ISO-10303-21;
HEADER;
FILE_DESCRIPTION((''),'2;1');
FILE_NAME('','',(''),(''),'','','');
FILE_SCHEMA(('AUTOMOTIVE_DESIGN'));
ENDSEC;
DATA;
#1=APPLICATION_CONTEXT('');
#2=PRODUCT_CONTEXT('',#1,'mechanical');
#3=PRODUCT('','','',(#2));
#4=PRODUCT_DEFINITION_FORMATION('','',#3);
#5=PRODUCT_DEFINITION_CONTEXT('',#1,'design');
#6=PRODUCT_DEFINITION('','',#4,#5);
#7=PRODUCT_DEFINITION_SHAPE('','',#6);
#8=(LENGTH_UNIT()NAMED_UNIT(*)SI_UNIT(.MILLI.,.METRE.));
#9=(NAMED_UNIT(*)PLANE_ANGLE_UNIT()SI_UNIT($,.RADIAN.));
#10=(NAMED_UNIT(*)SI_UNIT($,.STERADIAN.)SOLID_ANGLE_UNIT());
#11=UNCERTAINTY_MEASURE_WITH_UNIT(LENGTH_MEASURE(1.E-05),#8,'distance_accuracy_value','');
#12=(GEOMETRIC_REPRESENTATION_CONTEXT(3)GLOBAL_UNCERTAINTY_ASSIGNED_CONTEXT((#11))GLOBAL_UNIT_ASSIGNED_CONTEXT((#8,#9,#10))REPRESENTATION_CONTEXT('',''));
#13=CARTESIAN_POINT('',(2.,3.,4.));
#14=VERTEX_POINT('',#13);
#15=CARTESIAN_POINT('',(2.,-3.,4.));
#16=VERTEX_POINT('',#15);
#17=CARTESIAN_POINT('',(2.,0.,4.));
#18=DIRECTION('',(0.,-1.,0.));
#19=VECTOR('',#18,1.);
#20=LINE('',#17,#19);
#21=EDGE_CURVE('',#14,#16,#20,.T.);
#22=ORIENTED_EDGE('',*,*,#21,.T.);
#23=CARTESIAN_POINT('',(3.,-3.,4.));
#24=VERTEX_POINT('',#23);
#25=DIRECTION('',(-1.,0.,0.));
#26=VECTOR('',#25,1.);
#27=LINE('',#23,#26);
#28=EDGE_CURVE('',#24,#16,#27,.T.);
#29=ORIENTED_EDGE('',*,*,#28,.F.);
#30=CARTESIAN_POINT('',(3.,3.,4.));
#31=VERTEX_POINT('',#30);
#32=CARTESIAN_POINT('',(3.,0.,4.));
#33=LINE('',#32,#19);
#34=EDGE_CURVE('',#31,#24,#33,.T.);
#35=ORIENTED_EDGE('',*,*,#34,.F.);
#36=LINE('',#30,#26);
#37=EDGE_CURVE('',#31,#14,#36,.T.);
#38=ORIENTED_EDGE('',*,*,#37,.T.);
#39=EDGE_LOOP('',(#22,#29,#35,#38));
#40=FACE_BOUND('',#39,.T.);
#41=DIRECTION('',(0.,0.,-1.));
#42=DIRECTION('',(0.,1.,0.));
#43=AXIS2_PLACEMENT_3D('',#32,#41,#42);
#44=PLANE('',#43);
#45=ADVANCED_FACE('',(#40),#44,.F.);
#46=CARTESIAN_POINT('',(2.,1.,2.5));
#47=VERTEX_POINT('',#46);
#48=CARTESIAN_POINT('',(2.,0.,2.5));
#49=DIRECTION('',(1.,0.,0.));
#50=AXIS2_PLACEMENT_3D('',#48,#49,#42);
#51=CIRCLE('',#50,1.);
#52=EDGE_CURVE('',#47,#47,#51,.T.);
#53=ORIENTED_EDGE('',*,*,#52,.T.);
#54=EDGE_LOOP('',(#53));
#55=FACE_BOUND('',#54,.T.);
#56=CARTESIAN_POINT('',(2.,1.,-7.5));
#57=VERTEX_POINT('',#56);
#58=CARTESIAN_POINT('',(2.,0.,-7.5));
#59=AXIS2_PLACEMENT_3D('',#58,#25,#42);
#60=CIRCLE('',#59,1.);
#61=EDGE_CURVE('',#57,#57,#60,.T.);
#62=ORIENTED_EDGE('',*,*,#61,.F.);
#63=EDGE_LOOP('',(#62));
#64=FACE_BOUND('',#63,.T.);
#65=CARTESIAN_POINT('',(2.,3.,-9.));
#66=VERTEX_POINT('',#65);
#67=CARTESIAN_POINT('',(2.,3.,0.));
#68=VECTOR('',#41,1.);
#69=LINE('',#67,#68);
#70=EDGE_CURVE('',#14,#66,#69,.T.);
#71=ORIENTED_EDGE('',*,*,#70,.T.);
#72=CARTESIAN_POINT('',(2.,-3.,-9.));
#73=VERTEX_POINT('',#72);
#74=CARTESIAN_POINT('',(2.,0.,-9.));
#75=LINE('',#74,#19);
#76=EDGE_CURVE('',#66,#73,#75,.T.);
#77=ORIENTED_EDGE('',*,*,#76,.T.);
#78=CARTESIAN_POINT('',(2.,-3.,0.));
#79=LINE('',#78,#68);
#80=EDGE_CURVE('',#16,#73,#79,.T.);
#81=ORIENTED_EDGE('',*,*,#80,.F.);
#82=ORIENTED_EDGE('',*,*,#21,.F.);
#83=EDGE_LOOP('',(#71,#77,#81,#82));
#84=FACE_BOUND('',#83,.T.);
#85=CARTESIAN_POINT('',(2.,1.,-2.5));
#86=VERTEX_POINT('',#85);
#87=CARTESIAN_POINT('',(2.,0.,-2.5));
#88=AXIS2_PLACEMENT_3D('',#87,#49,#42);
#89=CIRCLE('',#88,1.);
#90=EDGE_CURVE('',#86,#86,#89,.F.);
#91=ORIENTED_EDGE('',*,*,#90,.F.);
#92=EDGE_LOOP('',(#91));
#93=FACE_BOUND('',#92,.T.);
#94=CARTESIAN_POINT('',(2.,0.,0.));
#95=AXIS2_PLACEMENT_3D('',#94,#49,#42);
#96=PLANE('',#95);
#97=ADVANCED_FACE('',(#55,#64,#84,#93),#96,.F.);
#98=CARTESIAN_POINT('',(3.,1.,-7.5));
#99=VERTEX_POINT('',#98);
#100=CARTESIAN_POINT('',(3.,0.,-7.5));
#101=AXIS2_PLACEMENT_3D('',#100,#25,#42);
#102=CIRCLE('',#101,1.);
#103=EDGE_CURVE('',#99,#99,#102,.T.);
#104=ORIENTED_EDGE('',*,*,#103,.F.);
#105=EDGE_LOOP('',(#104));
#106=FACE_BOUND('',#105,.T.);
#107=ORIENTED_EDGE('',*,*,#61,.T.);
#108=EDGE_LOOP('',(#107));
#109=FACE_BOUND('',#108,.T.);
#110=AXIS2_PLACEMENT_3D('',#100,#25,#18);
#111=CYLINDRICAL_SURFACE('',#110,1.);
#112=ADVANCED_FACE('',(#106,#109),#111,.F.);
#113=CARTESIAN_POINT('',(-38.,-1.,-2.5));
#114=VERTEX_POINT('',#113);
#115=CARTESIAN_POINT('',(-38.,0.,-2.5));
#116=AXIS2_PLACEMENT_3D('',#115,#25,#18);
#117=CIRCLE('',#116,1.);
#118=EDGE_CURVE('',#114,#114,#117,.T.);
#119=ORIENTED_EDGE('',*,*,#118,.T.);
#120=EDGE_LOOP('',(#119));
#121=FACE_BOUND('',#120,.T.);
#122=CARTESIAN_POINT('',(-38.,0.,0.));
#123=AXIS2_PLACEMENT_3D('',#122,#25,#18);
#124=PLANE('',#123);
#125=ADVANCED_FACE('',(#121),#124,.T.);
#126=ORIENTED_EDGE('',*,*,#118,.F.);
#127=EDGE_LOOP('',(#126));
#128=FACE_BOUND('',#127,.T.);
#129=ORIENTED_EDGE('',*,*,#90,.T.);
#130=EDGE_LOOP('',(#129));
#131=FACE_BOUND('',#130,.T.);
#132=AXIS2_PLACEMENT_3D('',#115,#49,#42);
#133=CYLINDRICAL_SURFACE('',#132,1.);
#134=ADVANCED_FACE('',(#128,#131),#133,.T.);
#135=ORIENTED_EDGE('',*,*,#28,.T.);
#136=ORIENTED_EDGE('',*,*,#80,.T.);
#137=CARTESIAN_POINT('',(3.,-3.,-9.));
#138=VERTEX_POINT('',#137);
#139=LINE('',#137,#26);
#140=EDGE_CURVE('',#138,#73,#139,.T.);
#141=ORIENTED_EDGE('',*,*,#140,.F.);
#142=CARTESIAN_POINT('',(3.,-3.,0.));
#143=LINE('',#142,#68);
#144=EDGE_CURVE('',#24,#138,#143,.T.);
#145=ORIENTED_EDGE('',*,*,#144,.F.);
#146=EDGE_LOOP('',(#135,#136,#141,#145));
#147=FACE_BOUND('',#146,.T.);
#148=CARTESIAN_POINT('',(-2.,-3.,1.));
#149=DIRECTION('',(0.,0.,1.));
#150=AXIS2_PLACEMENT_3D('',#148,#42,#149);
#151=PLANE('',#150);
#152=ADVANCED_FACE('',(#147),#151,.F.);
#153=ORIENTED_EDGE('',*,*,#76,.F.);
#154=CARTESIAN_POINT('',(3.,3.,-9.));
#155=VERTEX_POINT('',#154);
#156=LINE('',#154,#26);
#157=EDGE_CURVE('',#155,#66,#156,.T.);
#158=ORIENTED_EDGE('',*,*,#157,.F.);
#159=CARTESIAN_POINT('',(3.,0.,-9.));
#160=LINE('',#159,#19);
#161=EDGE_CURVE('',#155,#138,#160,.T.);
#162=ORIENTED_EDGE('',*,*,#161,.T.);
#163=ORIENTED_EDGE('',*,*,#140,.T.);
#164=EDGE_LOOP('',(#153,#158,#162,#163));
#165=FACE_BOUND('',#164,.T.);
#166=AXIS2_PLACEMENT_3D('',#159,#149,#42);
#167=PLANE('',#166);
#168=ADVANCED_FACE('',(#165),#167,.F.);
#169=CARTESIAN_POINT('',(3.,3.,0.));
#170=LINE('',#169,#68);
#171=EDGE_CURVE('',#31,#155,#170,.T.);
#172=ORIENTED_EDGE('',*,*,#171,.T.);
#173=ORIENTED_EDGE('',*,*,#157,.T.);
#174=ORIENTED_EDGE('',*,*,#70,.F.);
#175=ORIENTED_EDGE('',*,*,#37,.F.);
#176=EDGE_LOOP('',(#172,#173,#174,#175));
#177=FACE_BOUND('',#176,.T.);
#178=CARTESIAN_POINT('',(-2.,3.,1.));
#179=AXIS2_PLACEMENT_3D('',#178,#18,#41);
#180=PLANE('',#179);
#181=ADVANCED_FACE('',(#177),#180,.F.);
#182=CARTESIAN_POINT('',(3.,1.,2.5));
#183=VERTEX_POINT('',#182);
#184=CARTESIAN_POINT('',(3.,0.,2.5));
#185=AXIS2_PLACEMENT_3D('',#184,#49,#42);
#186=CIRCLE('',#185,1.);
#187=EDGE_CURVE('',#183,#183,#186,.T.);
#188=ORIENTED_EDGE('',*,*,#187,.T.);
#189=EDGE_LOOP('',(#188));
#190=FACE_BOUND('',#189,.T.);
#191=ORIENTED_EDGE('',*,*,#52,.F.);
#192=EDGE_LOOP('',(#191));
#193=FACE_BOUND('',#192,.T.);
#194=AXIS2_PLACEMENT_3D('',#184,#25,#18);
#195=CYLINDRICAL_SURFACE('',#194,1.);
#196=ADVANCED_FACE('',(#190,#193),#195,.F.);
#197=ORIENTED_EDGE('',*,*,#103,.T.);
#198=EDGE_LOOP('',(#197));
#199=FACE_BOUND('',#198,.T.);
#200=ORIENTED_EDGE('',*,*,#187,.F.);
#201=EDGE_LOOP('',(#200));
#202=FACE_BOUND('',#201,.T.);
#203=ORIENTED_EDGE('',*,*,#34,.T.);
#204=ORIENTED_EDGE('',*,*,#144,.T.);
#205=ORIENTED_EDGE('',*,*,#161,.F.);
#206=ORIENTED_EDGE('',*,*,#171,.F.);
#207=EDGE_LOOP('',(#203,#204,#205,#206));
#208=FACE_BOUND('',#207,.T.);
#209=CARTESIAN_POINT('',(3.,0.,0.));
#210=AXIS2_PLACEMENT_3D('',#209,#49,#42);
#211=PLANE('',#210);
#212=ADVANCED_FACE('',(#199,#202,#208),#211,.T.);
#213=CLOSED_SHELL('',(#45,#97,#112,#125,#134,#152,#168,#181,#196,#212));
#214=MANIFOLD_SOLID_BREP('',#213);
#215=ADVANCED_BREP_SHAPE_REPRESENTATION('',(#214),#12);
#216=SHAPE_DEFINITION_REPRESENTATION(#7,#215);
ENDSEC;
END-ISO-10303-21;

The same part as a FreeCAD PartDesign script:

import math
import FreeCAD as App
import Part
import Sketcher

V = App.Vector


def edges_at(feature, points):
    """Names of the edges that pass closest to the given points."""
    edges = feature.Shape.Edges
    near = lambda p: min(range(len(edges)), key=lambda i: edges[i].distToShape(Part.Vertex(*p))[0])
    return sorted({f"Edge{near(p) + 1}" for p in points})

doc = App.newDocument("Part")
body = doc.addObject("PartDesign::Body", "Body")

# Sketch on XY plane
sketch1 = body.newObject("Sketcher::SketchObject", "Sketch")
sketch1.AttachmentSupport = (doc.getObject("XY_Plane"), [""])
sketch1.MapMode = "FlatFace"
sketch1.addGeometry(Part.LineSegment(V(-2, 3, 0), V(-2, -3, 0)), False)
sketch1.addGeometry(Part.LineSegment(V(-2, -3, 0), V(2, -3, 0)), False)
sketch1.addGeometry(Part.LineSegment(V(2, -3, 0), V(2, 3, 0)), False)
sketch1.addGeometry(Part.LineSegment(V(2, 3, 0), V(-2, 3, 0)), False)
sketch1.addGeometry(Part.Circle(V(0, 0, 0), V(0, 0, 1), 1), False)
sketch1.addConstraint(Sketcher.Constraint("Coincident", 0, 2, 1, 1))
sketch1.addConstraint(Sketcher.Constraint("Coincident", 1, 2, 2, 1))
sketch1.addConstraint(Sketcher.Constraint("Coincident", 2, 2, 3, 1))
sketch1.addConstraint(Sketcher.Constraint("Coincident", 3, 2, 0, 1))
sketch1.addConstraint(Sketcher.Constraint("Vertical", 0))
sketch1.addConstraint(Sketcher.Constraint("Horizontal", 1))
sketch1.addConstraint(Sketcher.Constraint("Vertical", 2))
sketch1.addConstraint(Sketcher.Constraint("Horizontal", 3))
sketch1.addConstraint(Sketcher.Constraint("Coincident", 4, 3, -1, 1))
sketch1.addConstraint(Sketcher.Constraint("Symmetric", 0, 2, 2, 2, -1, 1))
sketch1.addConstraint(Sketcher.Constraint("Diameter", 4, 2.0))
sketch1.addConstraint(Sketcher.Constraint("DistanceX", 1, 1, 1, 2, 4.0))
sketch1.addConstraint(Sketcher.Constraint("DistanceY", 0, 2, 0, 1, 6.0))
pad1 = body.newObject("PartDesign::Pad", "Pad")
pad1.Profile = sketch1
pad1.Length = 1

# Sketch on YZ plane
sketch2 = body.newObject("Sketcher::SketchObject", "Sketch001")
sketch2.AttachmentSupport = (doc.getObject("YZ_Plane"), [""])
sketch2.MapMode = "FlatFace"
sketch2.AttachmentOffset = App.Placement(V(0, 0, 2), App.Rotation())
sketch2.addGeometry(Part.LineSegment(V(3, 4, 0), V(-3, 4, 0)), False)
sketch2.addGeometry(Part.LineSegment(V(-3, 4, 0), V(-3, -2.5, 0)), False)
sketch2.addGeometry(Part.LineSegment(V(-3, -2.5, 0), V(3, -2.5, 0)), False)
sketch2.addGeometry(Part.LineSegment(V(3, -2.5, 0), V(3, 4, 0)), False)
sketch2.addGeometry(Part.Circle(V(0, 2.5, 0), V(0, 0, 1), 1), False)
sketch2.addConstraint(Sketcher.Constraint("Coincident", 0, 2, 1, 1))
sketch2.addConstraint(Sketcher.Constraint("Coincident", 1, 2, 2, 1))
sketch2.addConstraint(Sketcher.Constraint("Coincident", 2, 2, 3, 1))
sketch2.addConstraint(Sketcher.Constraint("Coincident", 3, 2, 0, 1))
sketch2.addConstraint(Sketcher.Constraint("Horizontal", 0))
sketch2.addConstraint(Sketcher.Constraint("Vertical", 1))
sketch2.addConstraint(Sketcher.Constraint("Horizontal", 2))
sketch2.addConstraint(Sketcher.Constraint("Vertical", 3))
sketch2.addConstraint(Sketcher.Constraint("PointOnObject", 4, 3, -2))
sketch2.addConstraint(Sketcher.Constraint("Diameter", 4, 2.0))
sketch2.addConstraint(Sketcher.Constraint("DistanceX", 0, 2, 0, 1, 6.0))
sketch2.addConstraint(Sketcher.Constraint("DistanceY", 1, 2, 1, 1, 6.5))
sketch2.addConstraint(Sketcher.Constraint("DistanceX", 0, 2, -1, 1, 3.0))
sketch2.addConstraint(Sketcher.Constraint("DistanceY", -1, 1, 0, 2, 4.0))
sketch2.addConstraint(Sketcher.Constraint("DistanceY", 1, 2, 4, 3, 5.0))
pad2 = body.newObject("PartDesign::Pad", "Pad001")
pad2.Profile = sketch2
pad2.Length = 1
doc.recompute()

fillet = body.newObject("PartDesign::Fillet", "Fillet")
fillet.Base = (pad2, edges_at(pad2, [(-2, -3, 0.5), (-2, 3, 0.5)]))
fillet.Radius = 1
body2 = doc.addObject("PartDesign::Body", "Body001")
doc.recompute()

body2.BaseFeature = body
doc.recompute()

mirroring = doc.addObject("Part::Mirroring", "Mirroring")
mirroring.Source = body
mirroring.Base = V(3, 0, -2.5)
mirroring.Normal = V(0, 0, 1)
body3 = doc.addObject("PartDesign::Body", "Body002")
body3.BaseFeature = mirroring
boolean = body2.newObject("PartDesign::Boolean", "Boolean")
boolean.Type = "Fuse"
boolean.addObjects([body3])
doc.recompute()

# Sketch on YZ plane
sketch3 = body2.newObject("Sketcher::SketchObject", "Sketch002")
sketch3.AttachmentSupport = (doc.getObject("YZ_Plane001"), [""])
sketch3.MapMode = "FlatFace"
sketch3.AttachmentOffset = App.Placement(V(0, 0, 2), App.Rotation())
sketch3.addGeometry(Part.LineSegment(V(4, -7, 0), V(-4, -7, 0)), False)
sketch3.addGeometry(Part.LineSegment(V(-4, -7, 0), V(-4, 2, 0)), False)
sketch3.addGeometry(Part.LineSegment(V(-4, 2, 0), V(4, 2, 0)), False)
sketch3.addGeometry(Part.LineSegment(V(4, 2, 0), V(4, -7, 0)), False)
sketch3.addConstraint(Sketcher.Constraint("Coincident", 0, 2, 1, 1))
sketch3.addConstraint(Sketcher.Constraint("Coincident", 1, 2, 2, 1))
sketch3.addConstraint(Sketcher.Constraint("Coincident", 2, 2, 3, 1))
sketch3.addConstraint(Sketcher.Constraint("Coincident", 3, 2, 0, 1))
sketch3.addConstraint(Sketcher.Constraint("Horizontal", 0))
sketch3.addConstraint(Sketcher.Constraint("Vertical", 1))
sketch3.addConstraint(Sketcher.Constraint("Horizontal", 2))
sketch3.addConstraint(Sketcher.Constraint("Vertical", 3))
sketch3.addConstraint(Sketcher.Constraint("DistanceY", 1, 1, 1, 2, 8.324992))
sketch3.addConstraint(Sketcher.Constraint("DistanceX", 0, 2, 0, 1, 7.604037))
sketch3.addConstraint(Sketcher.Constraint("DistanceX", 0, 2, -1, 1, 3.802018))
sketch3.addConstraint(Sketcher.Constraint("DistanceY", 0, 2, -1, 1, 6.662496))
pocket1 = body2.newObject("PartDesign::Pocket", "Pocket")
pocket1.Profile = sketch3
pocket1.Length = 10

# Sketch on YZ plane
sketch4 = body2.newObject("Sketcher::SketchObject", "Sketch003")
sketch4.AttachmentSupport = (doc.getObject("YZ_Plane001"), [""])
sketch4.MapMode = "FlatFace"
sketch4.AttachmentOffset = App.Placement(V(0, 0, 2), App.Rotation())
sketch4.addGeometry(Part.ArcOfCircle(Part.Circle(V(0, -2.5, 0), V(0, 0, 1), 1), math.radians(-90), math.radians(0)), False)
sketch4.addGeometry(Part.ArcOfCircle(Part.Circle(V(0, -2.5, 0), V(0, 0, 1), 1), math.radians(-180), math.radians(-90)), False)
sketch4.addGeometry(Part.ArcOfCircle(Part.Circle(V(0, -2.5, 0), V(0, 0, 1), 1), math.radians(90), math.radians(180)), False)
sketch4.addGeometry(Part.ArcOfCircle(Part.Circle(V(0, -2.5, 0), V(0, 0, 1), 1), math.radians(0), math.radians(90)), False)
sketch4.addConstraint(Sketcher.Constraint("Tangent", 0, 1, 1, 2))
sketch4.addConstraint(Sketcher.Constraint("Tangent", 1, 1, 2, 2))
sketch4.addConstraint(Sketcher.Constraint("Tangent", 2, 1, 3, 2))
sketch4.addConstraint(Sketcher.Constraint("Tangent", 3, 1, 0, 2))
sketch4.addConstraint(Sketcher.Constraint("Equal", 0, 1))
sketch4.addConstraint(Sketcher.Constraint("Symmetric", 1, 1, 3, 1, -2))
sketch4.addConstraint(Sketcher.Constraint("PointOnObject", 0, 1, -2))
sketch4.addConstraint(Sketcher.Constraint("PointOnObject", 2, 1, -2))
sketch4.addConstraint(Sketcher.Constraint("Horizontal", 3, 3, 1, 1))
sketch4.addConstraint(Sketcher.Constraint("Radius", 0, 1.0))
sketch4.addConstraint(Sketcher.Constraint("DistanceY", 0, 3, -1, 1, 2.5))
pad3 = body2.newObject("PartDesign::Pad", "Pad002")
pad3.Profile = sketch4
pad3.Length = 40
pad3.Reversed = True
mirroring.Visibility = False

doc.recompute()
